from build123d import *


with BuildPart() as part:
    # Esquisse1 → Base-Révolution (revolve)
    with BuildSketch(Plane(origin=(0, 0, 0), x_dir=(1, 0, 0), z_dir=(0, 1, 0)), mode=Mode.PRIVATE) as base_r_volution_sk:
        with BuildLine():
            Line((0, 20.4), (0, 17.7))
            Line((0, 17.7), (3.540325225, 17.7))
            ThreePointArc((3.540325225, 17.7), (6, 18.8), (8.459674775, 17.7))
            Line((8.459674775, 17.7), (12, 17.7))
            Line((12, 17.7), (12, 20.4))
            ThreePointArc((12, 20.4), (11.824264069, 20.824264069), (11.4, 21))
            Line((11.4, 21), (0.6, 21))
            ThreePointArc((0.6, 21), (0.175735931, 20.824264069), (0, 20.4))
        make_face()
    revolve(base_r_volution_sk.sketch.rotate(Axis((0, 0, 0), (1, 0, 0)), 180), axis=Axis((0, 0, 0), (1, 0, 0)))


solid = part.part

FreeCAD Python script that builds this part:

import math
import FreeCAD as App
import Part
import Sketcher

V = App.Vector

doc = App.newDocument("Part")
params = doc.addObject("Spreadsheet::Sheet", "Params")
for row, (alias, value) in enumerate([
    ("sketch1_radius", "3.3 mm"),
    ("sketch1_radius2", "0.6 mm"),
    ("sketch1_width", "10.8 mm"),
    ("sketch1_height", "2.7 mm"),
    ("revolution_angle", "360 deg"),
], start=1):
    params.set(f"A{row}", alias)
    params.set(f"B{row}", "=" + value)
    params.setAlias(f"B{row}", alias)

body = doc.addObject("PartDesign::Body", "Body")

sketch1 = body.newObject("Sketcher::SketchObject", "Sketch")
sketch1.AttachmentSupport = (doc.getObject("XZ_Plane"), [""])
sketch1.MapMode = "FlatFace"
sketch1.addGeometry(Part.LineSegment(V(0, -20.4, 0), V(0, -17.7, 0)), False)
sketch1.addGeometry(Part.LineSegment(V(0, -17.7, 0), V(3.5, -17.7, 0)), False)
sketch1.addGeometry(Part.ArcOfCircle(Part.Circle(V(6, -15.5, 0), V(0, 0, 1), 3.3), math.radians(-138), math.radians(-42)), False)
sketch1.addGeometry(Part.LineSegment(V(8.5, -17.7, 0), V(12, -17.7, 0)), False)
sketch1.addGeometry(Part.LineSegment(V(12, -17.7, 0), V(12, -20.4, 0)), False)
sketch1.addGeometry(Part.ArcOfCircle(Part.Circle(V(11.4, -20.4, 0), V(0, 0, 1), 0.6), math.radians(-90), math.radians(0)), False)
sketch1.addGeometry(Part.LineSegment(V(11.4, -21, 0), V(0.6, -21, 0)), False)
sketch1.addGeometry(Part.ArcOfCircle(Part.Circle(V(0.6, -20.4, 0), V(0, 0, 1), 0.6), math.radians(180), math.radians(270)), False)
sketch1.addConstraint(Sketcher.Constraint("Coincident", 0, 2, 1, 1))
sketch1.addConstraint(Sketcher.Constraint("Coincident", 1, 2, 2, 1))
sketch1.addConstraint(Sketcher.Constraint("Coincident", 2, 2, 3, 1))
sketch1.addConstraint(Sketcher.Constraint("Coincident", 3, 2, 4, 1))
sketch1.addConstraint(Sketcher.Constraint("Tangent", 4, 2, 5, 2))
sketch1.addConstraint(Sketcher.Constraint("Tangent", 5, 1, 6, 1))
sketch1.addConstraint(Sketcher.Constraint("Tangent", 6, 2, 7, 2))
sketch1.addConstraint(Sketcher.Constraint("Tangent", 7, 1, 0, 1))
sketch1.addConstraint(Sketcher.Constraint("Vertical", 0))
sketch1.addConstraint(Sketcher.Constraint("Horizontal", 1))
sketch1.addConstraint(Sketcher.Constraint("Horizontal", 3))
sketch1.addConstraint(Sketcher.Constraint("Vertical", 4))
sketch1.addConstraint(Sketcher.Constraint("Horizontal", 6))
sketch1.addConstraint(Sketcher.Constraint("Equal", 5, 7))
sketch1.addConstraint(Sketcher.Constraint("PointOnObject", 0, 2, -2))
sketch1.addConstraint(Sketcher.Constraint("Horizontal", 1, 2, 2, 2))
sketch1.addConstraint(Sketcher.Constraint("Equal", 1, 3))
sketch1.addConstraint(Sketcher.Constraint("Radius", 2, 3.3))
sketch1.addConstraint(Sketcher.Constraint("Radius", 5, 0.6))
sketch1.addConstraint(Sketcher.Constraint("DistanceX", 6, 2, 6, 1, 10.8))
sketch1.addConstraint(Sketcher.Constraint("DistanceY", 0, 1, 0, 2, 2.7))
sketch1.addConstraint(Sketcher.Constraint("DistanceY", 5, 1, -1, 1, 21.0))
sketch1.addConstraint(Sketcher.Constraint("DistanceY", 2, 3, -1, 1, 15.5))
sketch1.setExpression("Constraints[17]", "Params.sketch1_radius")
sketch1.setExpression("Constraints[18]", "Params.sketch1_radius2")
sketch1.setExpression("Constraints[19]", "Params.sketch1_width")
sketch1.setExpression("Constraints[20]", "Params.sketch1_height")
revolution = body.newObject("PartDesign::Revolution", "Revolution")
revolution.Profile = sketch1
revolution.ReferenceAxis = (sketch1, ["H_Axis"])
revolution.setExpression("Angle", "Params.revolution_angle")

doc.recompute()
